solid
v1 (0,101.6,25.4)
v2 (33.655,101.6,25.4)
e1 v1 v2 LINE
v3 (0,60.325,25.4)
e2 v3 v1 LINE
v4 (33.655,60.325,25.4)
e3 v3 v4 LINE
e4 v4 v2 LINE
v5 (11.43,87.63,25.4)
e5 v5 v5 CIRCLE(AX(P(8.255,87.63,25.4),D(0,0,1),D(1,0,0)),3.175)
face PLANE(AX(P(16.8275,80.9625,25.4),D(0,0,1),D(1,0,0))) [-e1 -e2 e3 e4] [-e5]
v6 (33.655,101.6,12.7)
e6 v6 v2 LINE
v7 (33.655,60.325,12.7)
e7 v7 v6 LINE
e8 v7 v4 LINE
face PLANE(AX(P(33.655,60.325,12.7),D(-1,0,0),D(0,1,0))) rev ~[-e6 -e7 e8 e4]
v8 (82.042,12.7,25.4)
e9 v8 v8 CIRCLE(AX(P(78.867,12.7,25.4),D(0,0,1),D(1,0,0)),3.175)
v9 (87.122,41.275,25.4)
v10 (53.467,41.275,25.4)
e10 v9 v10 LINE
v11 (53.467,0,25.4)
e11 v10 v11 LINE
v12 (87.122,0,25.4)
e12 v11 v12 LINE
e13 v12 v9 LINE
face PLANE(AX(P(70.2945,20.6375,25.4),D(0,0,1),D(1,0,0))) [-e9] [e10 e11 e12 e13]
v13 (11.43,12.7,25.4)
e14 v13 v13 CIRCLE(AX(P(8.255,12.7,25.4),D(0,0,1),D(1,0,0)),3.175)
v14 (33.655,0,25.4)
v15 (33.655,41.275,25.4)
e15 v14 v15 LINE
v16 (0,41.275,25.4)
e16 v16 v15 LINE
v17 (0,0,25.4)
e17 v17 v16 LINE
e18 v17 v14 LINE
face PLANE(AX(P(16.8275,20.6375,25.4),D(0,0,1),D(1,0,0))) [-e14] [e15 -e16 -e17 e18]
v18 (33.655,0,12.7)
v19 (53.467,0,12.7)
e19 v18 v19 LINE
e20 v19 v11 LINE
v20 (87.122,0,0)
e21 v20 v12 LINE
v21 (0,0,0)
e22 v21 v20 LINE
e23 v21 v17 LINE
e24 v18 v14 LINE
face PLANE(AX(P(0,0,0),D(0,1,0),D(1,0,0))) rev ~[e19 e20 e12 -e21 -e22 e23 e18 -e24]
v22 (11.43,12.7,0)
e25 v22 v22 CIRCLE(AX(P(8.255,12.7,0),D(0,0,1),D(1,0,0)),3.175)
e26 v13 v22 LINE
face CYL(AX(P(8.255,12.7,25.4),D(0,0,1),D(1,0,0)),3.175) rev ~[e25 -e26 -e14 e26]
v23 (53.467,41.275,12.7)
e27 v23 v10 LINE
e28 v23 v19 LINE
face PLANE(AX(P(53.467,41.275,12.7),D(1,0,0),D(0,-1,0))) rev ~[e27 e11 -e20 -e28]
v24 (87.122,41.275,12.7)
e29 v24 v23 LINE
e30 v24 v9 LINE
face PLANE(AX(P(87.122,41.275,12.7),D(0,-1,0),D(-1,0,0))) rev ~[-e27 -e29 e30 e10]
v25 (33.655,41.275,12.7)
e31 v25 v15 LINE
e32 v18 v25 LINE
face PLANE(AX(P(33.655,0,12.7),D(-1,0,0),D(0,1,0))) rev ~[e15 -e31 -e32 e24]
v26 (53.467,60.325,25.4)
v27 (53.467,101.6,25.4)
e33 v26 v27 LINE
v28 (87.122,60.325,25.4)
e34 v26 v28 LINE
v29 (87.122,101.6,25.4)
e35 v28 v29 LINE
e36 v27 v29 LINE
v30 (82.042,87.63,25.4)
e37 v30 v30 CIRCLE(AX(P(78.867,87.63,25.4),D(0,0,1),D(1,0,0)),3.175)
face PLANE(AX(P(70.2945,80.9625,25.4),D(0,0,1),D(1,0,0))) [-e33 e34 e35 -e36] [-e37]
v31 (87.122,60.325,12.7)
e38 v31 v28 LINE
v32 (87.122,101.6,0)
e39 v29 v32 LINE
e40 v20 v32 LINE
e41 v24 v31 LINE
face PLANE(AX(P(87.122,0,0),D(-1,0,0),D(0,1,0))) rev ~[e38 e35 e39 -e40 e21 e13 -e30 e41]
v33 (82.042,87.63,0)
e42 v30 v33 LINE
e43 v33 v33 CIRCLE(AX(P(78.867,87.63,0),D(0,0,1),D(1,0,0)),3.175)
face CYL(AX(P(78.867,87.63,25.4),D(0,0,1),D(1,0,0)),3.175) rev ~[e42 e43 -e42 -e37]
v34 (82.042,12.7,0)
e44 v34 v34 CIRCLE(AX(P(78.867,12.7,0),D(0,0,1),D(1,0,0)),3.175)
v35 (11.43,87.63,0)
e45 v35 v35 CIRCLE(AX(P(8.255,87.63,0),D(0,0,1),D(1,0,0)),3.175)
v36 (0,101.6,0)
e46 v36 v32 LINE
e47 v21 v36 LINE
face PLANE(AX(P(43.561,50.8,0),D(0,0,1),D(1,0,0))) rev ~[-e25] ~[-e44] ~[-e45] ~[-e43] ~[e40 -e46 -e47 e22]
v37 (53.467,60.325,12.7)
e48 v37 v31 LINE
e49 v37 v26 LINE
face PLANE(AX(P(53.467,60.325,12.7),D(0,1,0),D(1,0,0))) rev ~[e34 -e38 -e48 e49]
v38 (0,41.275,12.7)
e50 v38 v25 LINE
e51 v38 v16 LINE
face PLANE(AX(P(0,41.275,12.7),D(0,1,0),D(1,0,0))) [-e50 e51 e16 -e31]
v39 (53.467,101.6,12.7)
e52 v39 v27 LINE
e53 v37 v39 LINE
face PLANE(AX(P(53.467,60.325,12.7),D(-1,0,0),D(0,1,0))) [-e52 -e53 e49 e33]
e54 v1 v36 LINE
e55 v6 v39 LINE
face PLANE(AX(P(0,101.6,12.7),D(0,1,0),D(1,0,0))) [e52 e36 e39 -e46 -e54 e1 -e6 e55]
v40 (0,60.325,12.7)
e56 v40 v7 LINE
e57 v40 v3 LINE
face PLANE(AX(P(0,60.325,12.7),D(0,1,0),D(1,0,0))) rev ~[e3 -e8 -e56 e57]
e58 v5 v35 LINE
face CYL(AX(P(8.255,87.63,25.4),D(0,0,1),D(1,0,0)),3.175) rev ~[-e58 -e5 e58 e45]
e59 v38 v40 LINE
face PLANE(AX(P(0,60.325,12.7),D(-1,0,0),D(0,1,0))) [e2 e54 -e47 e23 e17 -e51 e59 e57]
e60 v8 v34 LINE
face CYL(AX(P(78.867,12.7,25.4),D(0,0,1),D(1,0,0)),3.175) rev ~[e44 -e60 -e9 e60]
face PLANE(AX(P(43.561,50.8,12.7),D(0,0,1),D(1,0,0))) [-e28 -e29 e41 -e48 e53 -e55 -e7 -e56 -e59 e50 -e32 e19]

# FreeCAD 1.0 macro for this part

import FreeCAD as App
import Part
import Sketcher
Q = App.Units.Quantity


def add_polygon(sketch, points):
    """Adds a closed chain of lines whose ends are joined by coincident constraints."""
    first, n = sketch.GeometryCount, len(points)
    for a, b in zip(points, points[1:] + points[:1]):
        sketch.addGeometry(Part.LineSegment(App.Vector(*a, 0), App.Vector(*b, 0)), False)
    for i in range(n):
        sketch.addConstraint(Sketcher.Constraint("Coincident", first + i, 2, first + (i + 1) % n, 1))

doc = App.newDocument("Part")
body = doc.addObject("PartDesign::Body", "Body")

# Sketch on XY plane
sketch1 = doc.addObject("Sketcher::SketchObject", "Sketch")
body.addObject(sketch1)
sketch1.AttachmentSupport = (doc.XY_Plane, [""])
sketch1.MapMode = "FlatFace"
add_polygon(sketch1, [(0, 102), (0, 0), (87, 0), (87, 102)])  # lines 0-3
sketch1.addConstraint(Sketcher.Constraint("Vertical", 0))
sketch1.addConstraint(Sketcher.Constraint("Horizontal", 1))
sketch1.addConstraint(Sketcher.Constraint("Vertical", 2))
sketch1.addConstraint(Sketcher.Constraint("Horizontal", 3))
sketch1.addConstraint(Sketcher.Constraint("Coincident", 0, 2, -1, 1))
sketch1.addConstraint(Sketcher.Constraint("DistanceY", 0, 2, 0, 1, Q("4 in")))
sketch1.addConstraint(Sketcher.Constraint("DistanceX", 1, 1, 1, 2, Q("3.43 in")))
pad1 = doc.addObject("PartDesign::Pad", "Pad")
body.addObject(pad1)
pad1.Profile = sketch1
pad1.Length = Q("0.5 in")

# Sketch on XY plane
sketch2 = doc.addObject("Sketcher::SketchObject", "Sketch001")
body.addObject(sketch2)
sketch2.AttachmentSupport = (doc.XY_Plane, [""])
sketch2.MapMode = "FlatFace"
sketch2.AttachmentOffset = App.Placement(App.Vector(0, 0, 0.5 * 25.4), App.Rotation())
add_polygon(sketch2, [(0, 102), (0, 60), (34, 60), (34, 102)])  # lines 0-3
add_polygon(sketch2, [(53, 102), (53, 60), (87, 60), (87, 102)])  # lines 4-7
add_polygon(sketch2, [(53, 0), (87, 0), (87, 41), (53, 41)])  # lines 8-11
add_polygon(sketch2, [(0, 41), (0, 0), (34, 0), (34, 41)])  # lines 12-15
sketch2.addConstraint(Sketcher.Constraint("Vertical", 0))
sketch2.addConstraint(Sketcher.Constraint("Horizontal", 1))
sketch2.addConstraint(Sketcher.Constraint("Vertical", 2))
sketch2.addConstraint(Sketcher.Constraint("Horizontal", 3))
sketch2.addConstraint(Sketcher.Constraint("Vertical", 4))
sketch2.addConstraint(Sketcher.Constraint("Horizontal", 5))
sketch2.addConstraint(Sketcher.Constraint("Vertical", 6))
sketch2.addConstraint(Sketcher.Constraint("Horizontal", 7))
sketch2.addConstraint(Sketcher.Constraint("Horizontal", 8))
sketch2.addConstraint(Sketcher.Constraint("Vertical", 9))
sketch2.addConstraint(Sketcher.Constraint("Horizontal", 10))
sketch2.addConstraint(Sketcher.Constraint("Vertical", 11))
sketch2.addConstraint(Sketcher.Constraint("Vertical", 12))
sketch2.addConstraint(Sketcher.Constraint("Horizontal", 13))
sketch2.addConstraint(Sketcher.Constraint("Vertical", 14))
sketch2.addConstraint(Sketcher.Constraint("Horizontal", 15))
sketch2.addConstraint(Sketcher.Constraint("Coincident", 12, 2, -1, 1))
sketch2.addConstraint(Sketcher.Constraint("PointOnObject", 0, 2, -2))
sketch2.addConstraint(Sketcher.Constraint("PointOnObject", 8, 2, -1))
sketch2.addConstraint(Sketcher.Constraint("Horizontal", 1, 2, 4, 2))
sketch2.addConstraint(Sketcher.Constraint("Horizontal", 3, 2, 6, 2))
sketch2.addConstraint(Sketcher.Constraint("Horizontal", 10, 2, 14, 2))
sketch2.addConstraint(Sketcher.Constraint("Vertical", 6, 2, 8, 2))
sketch2.addConstraint(Sketcher.Constraint("Vertical", 7, 2, 10, 2))
sketch2.addConstraint(Sketcher.Constraint("Vertical", 2, 2, 13, 2))
sketch2.addConstraint(Sketcher.Constraint("Equal", 3, 5))
sketch2.addConstraint(Sketcher.Constraint("Equal", 6, 9))
sketch2.addConstraint(Sketcher.Constraint("DistanceY", -1, 1, 2, 2, Q("4 in")))
sketch2.addConstraint(Sketcher.Constraint("DistanceX", 1, 1, 1, 2, Q("1.325 in")))
sketch2.addConstraint(Sketcher.Constraint("DistanceY", 0, 2, 0, 1, Q("1.625 in")))
sketch2.addConstraint(Sketcher.Constraint("DistanceX", -1, 1, 5, 2, Q("3.43 in")))
pad2 = doc.addObject("PartDesign::Pad", "Pad001")
body.addObject(pad2)
pad2.Profile = sketch2
pad2.Length = Q("0.5 in")

# Sketch on XY plane
sketch3 = doc.addObject("Sketcher::SketchObject", "Sketch002")
body.addObject(sketch3)
sketch3.AttachmentSupport = (doc.XY_Plane, [""])
sketch3.MapMode = "FlatFace"
sketch3.AttachmentOffset = App.Placement(App.Vector(0, 0, 1 * 25.4), App.Rotation())
sketch3.addGeometry(Part.Circle(App.Vector(78.9, 87.6, 0), App.Vector(0, 0, 1), 3.2), False)
sketch3.addGeometry(Part.Circle(App.Vector(8.3, 87.6, 0), App.Vector(0, 0, 1), 3.2), False)
sketch3.addGeometry(Part.Circle(App.Vector(78.9, 12.7, 0), App.Vector(0, 0, 1), 3.2), False)
sketch3.addGeometry(Part.Circle(App.Vector(8.3, 12.7, 0), App.Vector(0, 0, 1), 3.2), False)
sketch3.addConstraint(Sketcher.Constraint("Equal", 0, 1))
sketch3.addConstraint(Sketcher.Constraint("Equal", 1, 2))
sketch3.addConstraint(Sketcher.Constraint("Equal", 2, 3))
sketch3.addConstraint(Sketcher.Constraint("Horizontal", 0, 3, 1, 3))
sketch3.addConstraint(Sketcher.Constraint("Horizontal", 2, 3, 3, 3))
sketch3.addConstraint(Sketcher.Constraint("Vertical", 0, 3, 2, 3))
sketch3.addConstraint(Sketcher.Constraint("Vertical", 1, 3, 3, 3))
sketch3.addConstraint(Sketcher.Constraint("Diameter", 0, Q("0.25 in")))
sketch3.addConstraint(Sketcher.Constraint("DistanceY", -1, 1, 2, 3, Q("0.5 in")))
sketch3.addConstraint(Sketcher.Constraint("DistanceY", -1, 1, 0, 3, Q("3.45 in")))
sketch3.addConstraint(Sketcher.Constraint("DistanceX", 1, 3, 0, 3, Q("2.78 in")))
sketch3.addConstraint(Sketcher.Constraint("DistanceX", -1, 1, 0, 3, Q("3.105 in")))
pocket1 = doc.addObject("PartDesign::Pocket", "Pocket")
body.addObject(pocket1)
pocket1.Profile = sketch3
pocket1.Length = Q("1 in")

doc.recompute()
